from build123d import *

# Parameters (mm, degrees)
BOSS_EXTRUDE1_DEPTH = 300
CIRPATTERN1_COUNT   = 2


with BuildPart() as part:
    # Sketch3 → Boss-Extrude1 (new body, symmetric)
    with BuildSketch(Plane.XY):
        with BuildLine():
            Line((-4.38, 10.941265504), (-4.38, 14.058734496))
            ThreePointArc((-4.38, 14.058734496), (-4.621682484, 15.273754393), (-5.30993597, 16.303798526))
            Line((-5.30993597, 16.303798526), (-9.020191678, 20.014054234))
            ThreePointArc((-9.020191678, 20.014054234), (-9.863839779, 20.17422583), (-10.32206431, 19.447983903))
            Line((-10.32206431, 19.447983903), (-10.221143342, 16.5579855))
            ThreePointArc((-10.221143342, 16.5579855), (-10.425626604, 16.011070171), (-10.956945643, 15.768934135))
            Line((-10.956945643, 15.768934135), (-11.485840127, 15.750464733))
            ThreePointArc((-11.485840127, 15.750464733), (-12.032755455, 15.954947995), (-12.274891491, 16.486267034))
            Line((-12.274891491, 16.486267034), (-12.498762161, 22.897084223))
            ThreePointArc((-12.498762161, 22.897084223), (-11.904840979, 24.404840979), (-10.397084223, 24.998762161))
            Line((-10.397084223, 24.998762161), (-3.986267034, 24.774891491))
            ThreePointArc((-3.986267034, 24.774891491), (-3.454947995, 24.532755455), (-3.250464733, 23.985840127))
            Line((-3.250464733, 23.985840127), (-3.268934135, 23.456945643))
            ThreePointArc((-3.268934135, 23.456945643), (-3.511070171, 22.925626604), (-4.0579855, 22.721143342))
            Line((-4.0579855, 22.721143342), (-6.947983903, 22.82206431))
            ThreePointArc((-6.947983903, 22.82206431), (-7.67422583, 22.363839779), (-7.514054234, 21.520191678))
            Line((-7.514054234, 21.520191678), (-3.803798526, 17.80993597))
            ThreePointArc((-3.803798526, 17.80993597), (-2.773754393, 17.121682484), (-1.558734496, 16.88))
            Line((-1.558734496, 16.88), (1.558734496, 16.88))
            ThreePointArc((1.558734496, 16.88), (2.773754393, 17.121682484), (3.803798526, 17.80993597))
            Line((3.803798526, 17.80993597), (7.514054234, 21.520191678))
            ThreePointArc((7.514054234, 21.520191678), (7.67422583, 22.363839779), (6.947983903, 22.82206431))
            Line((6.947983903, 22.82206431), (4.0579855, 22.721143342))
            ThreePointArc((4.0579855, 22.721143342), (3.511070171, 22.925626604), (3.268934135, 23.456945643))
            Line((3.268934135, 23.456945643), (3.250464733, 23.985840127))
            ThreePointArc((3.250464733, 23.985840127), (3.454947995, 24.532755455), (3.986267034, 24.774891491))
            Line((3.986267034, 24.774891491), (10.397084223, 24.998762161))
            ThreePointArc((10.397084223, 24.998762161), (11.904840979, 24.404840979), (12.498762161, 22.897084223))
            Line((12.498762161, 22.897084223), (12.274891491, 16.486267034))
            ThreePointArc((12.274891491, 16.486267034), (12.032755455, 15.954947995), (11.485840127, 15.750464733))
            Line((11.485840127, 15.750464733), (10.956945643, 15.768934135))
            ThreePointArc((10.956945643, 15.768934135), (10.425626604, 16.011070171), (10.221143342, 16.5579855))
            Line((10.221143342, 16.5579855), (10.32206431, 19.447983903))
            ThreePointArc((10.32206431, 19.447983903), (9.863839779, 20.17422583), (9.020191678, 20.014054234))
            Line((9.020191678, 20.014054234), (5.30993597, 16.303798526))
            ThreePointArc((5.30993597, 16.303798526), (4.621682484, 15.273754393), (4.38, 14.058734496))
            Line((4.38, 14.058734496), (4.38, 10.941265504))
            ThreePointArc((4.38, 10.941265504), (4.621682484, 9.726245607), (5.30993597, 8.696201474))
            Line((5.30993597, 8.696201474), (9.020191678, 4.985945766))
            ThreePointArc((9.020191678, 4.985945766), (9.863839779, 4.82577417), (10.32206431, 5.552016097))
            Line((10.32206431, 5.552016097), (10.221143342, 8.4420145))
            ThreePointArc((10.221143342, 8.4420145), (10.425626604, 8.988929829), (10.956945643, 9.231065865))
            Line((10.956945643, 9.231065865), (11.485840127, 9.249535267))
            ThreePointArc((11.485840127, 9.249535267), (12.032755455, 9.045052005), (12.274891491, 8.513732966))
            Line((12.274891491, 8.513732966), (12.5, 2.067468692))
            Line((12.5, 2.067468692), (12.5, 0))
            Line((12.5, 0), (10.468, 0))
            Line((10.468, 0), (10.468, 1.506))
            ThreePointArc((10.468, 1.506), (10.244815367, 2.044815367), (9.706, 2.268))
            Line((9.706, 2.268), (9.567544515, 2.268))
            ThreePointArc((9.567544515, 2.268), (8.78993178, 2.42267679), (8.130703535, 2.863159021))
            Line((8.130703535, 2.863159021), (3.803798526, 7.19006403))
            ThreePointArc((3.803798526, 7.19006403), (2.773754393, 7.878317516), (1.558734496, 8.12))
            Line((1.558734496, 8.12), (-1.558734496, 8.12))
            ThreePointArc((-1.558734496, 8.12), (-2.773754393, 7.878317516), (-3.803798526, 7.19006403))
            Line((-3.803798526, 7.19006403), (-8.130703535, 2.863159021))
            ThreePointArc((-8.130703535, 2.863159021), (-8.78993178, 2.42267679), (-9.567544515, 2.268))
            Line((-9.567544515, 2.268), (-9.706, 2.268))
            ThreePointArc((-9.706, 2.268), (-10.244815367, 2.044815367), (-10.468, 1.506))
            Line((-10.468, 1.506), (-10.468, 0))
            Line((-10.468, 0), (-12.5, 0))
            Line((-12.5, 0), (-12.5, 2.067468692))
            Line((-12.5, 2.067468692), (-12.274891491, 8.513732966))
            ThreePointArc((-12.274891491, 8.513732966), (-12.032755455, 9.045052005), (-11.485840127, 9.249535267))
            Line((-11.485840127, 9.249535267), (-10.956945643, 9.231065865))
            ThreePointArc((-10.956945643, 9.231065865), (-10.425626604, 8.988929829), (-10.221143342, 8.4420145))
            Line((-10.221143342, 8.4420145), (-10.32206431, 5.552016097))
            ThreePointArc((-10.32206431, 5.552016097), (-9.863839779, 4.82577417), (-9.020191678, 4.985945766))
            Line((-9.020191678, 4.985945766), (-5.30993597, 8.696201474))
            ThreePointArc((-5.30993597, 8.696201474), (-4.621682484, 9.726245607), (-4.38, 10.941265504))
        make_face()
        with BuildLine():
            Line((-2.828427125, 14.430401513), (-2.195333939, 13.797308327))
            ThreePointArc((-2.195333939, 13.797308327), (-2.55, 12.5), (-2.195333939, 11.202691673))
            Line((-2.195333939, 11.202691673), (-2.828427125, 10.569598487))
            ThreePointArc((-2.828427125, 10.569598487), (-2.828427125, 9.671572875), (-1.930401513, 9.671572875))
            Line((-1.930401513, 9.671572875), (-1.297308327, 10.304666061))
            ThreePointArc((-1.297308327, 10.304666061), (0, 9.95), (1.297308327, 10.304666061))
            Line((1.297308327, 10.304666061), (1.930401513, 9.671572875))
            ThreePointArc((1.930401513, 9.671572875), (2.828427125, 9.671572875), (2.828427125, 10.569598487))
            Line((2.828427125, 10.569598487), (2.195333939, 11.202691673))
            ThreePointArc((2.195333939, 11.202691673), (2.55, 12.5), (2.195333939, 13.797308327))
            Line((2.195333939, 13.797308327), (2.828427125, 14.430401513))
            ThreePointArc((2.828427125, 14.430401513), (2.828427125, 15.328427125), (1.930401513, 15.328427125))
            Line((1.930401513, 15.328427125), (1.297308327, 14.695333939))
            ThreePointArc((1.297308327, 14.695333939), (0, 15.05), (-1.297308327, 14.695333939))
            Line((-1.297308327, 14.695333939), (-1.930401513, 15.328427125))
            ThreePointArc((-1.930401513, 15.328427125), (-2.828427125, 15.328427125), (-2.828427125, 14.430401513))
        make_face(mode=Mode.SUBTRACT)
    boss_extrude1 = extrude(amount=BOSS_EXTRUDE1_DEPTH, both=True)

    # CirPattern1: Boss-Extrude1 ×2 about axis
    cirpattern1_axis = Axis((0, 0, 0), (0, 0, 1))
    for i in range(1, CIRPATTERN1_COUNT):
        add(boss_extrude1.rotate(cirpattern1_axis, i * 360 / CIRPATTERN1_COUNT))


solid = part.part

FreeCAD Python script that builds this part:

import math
import FreeCAD as App
import Part
import Sketcher

V = App.Vector
Q = App.Units.Quantity

doc = App.newDocument("Part")
params = doc.addObject("Spreadsheet::Sheet", "Params")
for row, (alias, value) in enumerate([
    ("sketch1_radius", "0.03 in"),
    ("sketch1_radius2", "0.08 in"),
    ("sketch1_radius3", "0.125 in"),
    ("sketch1_radius4", "0.025 in"),
    ("sketch1_width", "0.08 in"),
    ("pad1_length", "600 mm"),
], start=1):
    params.set(f"A{row}", alias)
    params.set(f"B{row}", "=" + value)
    params.setAlias(f"B{row}", alias)

body = doc.addObject("PartDesign::Body", "Body")

# Sketch on XY plane
sketch1 = body.newObject("Sketcher::SketchObject", "Sketch")
sketch1.AttachmentSupport = (doc.getObject("XY_Plane"), [""])
sketch1.MapMode = "FlatFace"
sketch1.addGeometry([
    Part.LineSegment(V(-4.38, 14.06, 0), V(-4.38, 10.94, 0)),  # 0
    Part.ArcOfCircle(Part.Circle(V(-7.55, 10.94, 0), V(0, 0, 1), 3.17), math.radians(-45), math.radians(0)),  # 1
    Part.LineSegment(V(-5.31, 8.7, 0), V(-9.02, 4.99, 0)),  # 2
    Part.ArcOfCircle(Part.Circle(V(-9.56, 5.53, 0), V(0, 0, 1), 0.76), math.radians(178), math.radians(315)),  # 3
    Part.LineSegment(V(-10.32, 5.55, 0), V(-10.22, 8.44, 0)),  # 4
    Part.ArcOfCircle(Part.Circle(V(-10.98, 8.47, 0), V(0, 0, 1), 0.76), math.radians(-2), math.radians(88)),  # 5
    Part.LineSegment(V(-10.96, 9.23, 0), V(-11.49, 9.25, 0)),  # 6
    Part.ArcOfCircle(Part.Circle(V(-11.51, 8.49, 0), V(0, 0, 1), 0.76), math.radians(88), math.radians(178)),  # 7
    Part.LineSegment(V(-12.27, 8.51, 0), V(-12.5, 2.07, 0)),  # 8
    Part.LineSegment(V(-12.5, 2.07, 0), V(-12.5, 0, 0)),  # 9
    Part.LineSegment(V(-12.5, 0, 0), V(-10.47, 0, 0)),  # 10
    Part.LineSegment(V(-10.47, 0, 0), V(-10.47, 1.51, 0)),  # 11
    Part.ArcOfCircle(Part.Circle(V(-9.71, 1.51, 0), V(0, 0, 1), 0.76), math.radians(90), math.radians(180)),  # 12
    Part.LineSegment(V(-9.71, 2.27, 0), V(-9.57, 2.27, 0)),  # 13
    Part.ArcOfCircle(Part.Circle(V(-9.57, 4.3, 0), V(0, 0, 1), 2.03), math.radians(-90), math.radians(-45)),  # 14
    Part.LineSegment(V(-8.13, 2.86, 0), V(-3.8, 7.19, 0)),  # 15
    Part.ArcOfCircle(Part.Circle(V(-1.56, 4.95, 0), V(0, 0, 1), 3.17), math.radians(90), math.radians(135)),  # 16
    Part.LineSegment(V(-1.56, 8.12, 0), V(1.56, 8.12, 0)),  # 17
    Part.ArcOfCircle(Part.Circle(V(1.56, 4.95, 0), V(0, 0, 1), 3.17), math.radians(45), math.radians(90)),  # 18
    Part.LineSegment(V(3.8, 7.19, 0), V(8.13, 2.86, 0)),  # 19
    Part.ArcOfCircle(Part.Circle(V(9.57, 4.3, 0), V(0, 0, 1), 2.03), math.radians(-135), math.radians(-90)),  # 20
    Part.LineSegment(V(9.57, 2.27, 0), V(9.71, 2.27, 0)),  # 21
    Part.ArcOfCircle(Part.Circle(V(9.71, 1.51, 0), V(0, 0, 1), 0.76), math.radians(0), math.radians(90)),  # 22
    Part.LineSegment(V(10.47, 1.51, 0), V(10.47, 0, 0)),  # 23
    Part.LineSegment(V(10.47, 0, 0), V(12.5, 0, 0)),  # 24
    Part.LineSegment(V(12.5, 0, 0), V(12.5, 2.07, 0)),  # 25
    Part.LineSegment(V(12.5, 2.07, 0), V(12.27, 8.51, 0)),  # 26
    Part.ArcOfCircle(Part.Circle(V(11.51, 8.49, 0), V(0, 0, 1), 0.76), math.radians(2), math.radians(92)),  # 27
    Part.LineSegment(V(11.49, 9.25, 0), V(10.96, 9.23, 0)),  # 28
    Part.ArcOfCircle(Part.Circle(V(10.98, 8.47, 0), V(0, 0, 1), 0.76), math.radians(92), math.radians(182)),  # 29
    Part.LineSegment(V(10.22, 8.44, 0), V(10.32, 5.55, 0)),  # 30
    Part.ArcOfCircle(Part.Circle(V(9.56, 5.53, 0), V(0, 0, 1), 0.76), math.radians(-135), math.radians(2)),  # 31
    Part.LineSegment(V(9.02, 4.99, 0), V(5.31, 8.7, 0)),  # 32
    Part.ArcOfCircle(Part.Circle(V(7.55, 10.94, 0), V(0, 0, 1), 3.17), math.radians(180), math.radians(225)),  # 33
    Part.LineSegment(V(4.38, 10.94, 0), V(4.38, 14.06, 0)),  # 34
    Part.ArcOfCircle(Part.Circle(V(7.55, 14.06, 0), V(0, 0, 1), 3.17), math.radians(135), math.radians(180)),  # 35
    Part.LineSegment(V(5.31, 16.3, 0), V(9.02, 20.01, 0)),  # 36
    Part.ArcOfCircle(Part.Circle(V(9.56, 19.47, 0), V(0, 0, 1), 0.76), math.radians(-2), math.radians(135)),  # 37
    Part.LineSegment(V(10.32, 19.45, 0), V(10.22, 16.56, 0)),  # 38
    Part.ArcOfCircle(Part.Circle(V(10.98, 16.53, 0), V(0, 0, 1), 0.76), math.radians(178), math.radians(268)),  # 39
    Part.LineSegment(V(10.96, 15.77, 0), V(11.49, 15.75, 0)),  # 40
    Part.ArcOfCircle(Part.Circle(V(11.51, 16.51, 0), V(0, 0, 1), 0.76), math.radians(-92), math.radians(-2)),  # 41
    Part.LineSegment(V(12.27, 16.49, 0), V(12.5, 22.9, 0)),  # 42
    Part.ArcOfCircle(Part.Circle(V(10.47, 22.97, 0), V(0, 0, 1), 2.03), math.radians(-2), math.radians(92)),  # 43
    Part.LineSegment(V(10.4, 25, 0), V(3.99, 24.77, 0)),  # 44
    Part.ArcOfCircle(Part.Circle(V(4.01, 24.01, 0), V(0, 0, 1), 0.76), math.radians(92), math.radians(182)),  # 45
    Part.LineSegment(V(3.25, 23.99, 0), V(3.27, 23.46, 0)),  # 46
    Part.ArcOfCircle(Part.Circle(V(4.03, 23.48, 0), V(0, 0, 1), 0.76), math.radians(-178), math.radians(-88)),  # 47
    Part.LineSegment(V(4.06, 22.72, 0), V(6.95, 22.82, 0)),  # 48
    Part.ArcOfCircle(Part.Circle(V(6.97, 22.06, 0), V(0, 0, 1), 0.76), math.radians(-45), math.radians(92)),  # 49
    Part.LineSegment(V(7.51, 21.52, 0), V(3.8, 17.81, 0)),  # 50
    Part.ArcOfCircle(Part.Circle(V(1.56, 20.05, 0), V(0, 0, 1), 3.17), math.radians(-90), math.radians(-45)),  # 51
    Part.LineSegment(V(1.56, 16.88, 0), V(-1.56, 16.88, 0)),  # 52
    Part.ArcOfCircle(Part.Circle(V(-1.56, 20.05, 0), V(0, 0, 1), 3.17), math.radians(-135), math.radians(-90)),  # 53
    Part.LineSegment(V(-3.8, 17.81, 0), V(-7.51, 21.52, 0)),  # 54
    Part.ArcOfCircle(Part.Circle(V(-6.97, 22.06, 0), V(0, 0, 1), 0.76), math.radians(88), math.radians(225)),  # 55
    Part.LineSegment(V(-6.95, 22.82, 0), V(-4.06, 22.72, 0)),  # 56
    Part.ArcOfCircle(Part.Circle(V(-4.03, 23.48, 0), V(0, 0, 1), 0.76), math.radians(-92), math.radians(-2)),  # 57
    Part.LineSegment(V(-3.27, 23.46, 0), V(-3.25, 23.99, 0)),  # 58
    Part.ArcOfCircle(Part.Circle(V(-4.01, 24.01, 0), V(0, 0, 1), 0.76), math.radians(-2), math.radians(88)),  # 59
    Part.LineSegment(V(-3.99, 24.77, 0), V(-10.4, 25, 0)),  # 60
    Part.ArcOfCircle(Part.Circle(V(-10.47, 22.97, 0), V(0, 0, 1), 2.03), math.radians(88), math.radians(182)),  # 61
    Part.LineSegment(V(-12.5, 22.9, 0), V(-12.27, 16.49, 0)),  # 62
    Part.ArcOfCircle(Part.Circle(V(-11.51, 16.51, 0), V(0, 0, 1), 0.76), math.radians(-178), math.radians(-88)),  # 63
    Part.LineSegment(V(-11.49, 15.75, 0), V(-10.96, 15.77, 0)),  # 64
    Part.ArcOfCircle(Part.Circle(V(-10.98, 16.53, 0), V(0, 0, 1), 0.76), math.radians(-88), math.radians(2)),  # 65
    Part.LineSegment(V(-10.22, 16.56, 0), V(-10.32, 19.45, 0)),  # 66
    Part.ArcOfCircle(Part.Circle(V(-9.56, 19.47, 0), V(0, 0, 1), 0.76), math.radians(45), math.radians(182)),  # 67
    Part.LineSegment(V(-9.02, 20.01, 0), V(-5.31, 16.3, 0)),  # 68
    Part.ArcOfCircle(Part.Circle(V(-7.55, 14.06, 0), V(0, 0, 1), 3.17), math.radians(0), math.radians(45)),  # 69
    Part.ArcOfCircle(Part.Circle(V(-2.38, 14.88, 0), V(0, 0, 1), 0.64), math.radians(45), math.radians(225)),  # 70
    Part.LineSegment(V(-1.93, 15.33, 0), V(-1.3, 14.7, 0)),  # 71
    Part.ArcOfCircle(Part.Circle(V(0, 12.5, 0), V(0, 0, 1), 2.55), math.radians(59), math.radians(121)),  # 72
    Part.LineSegment(V(1.3, 14.7, 0), V(1.93, 15.33, 0)),  # 73
    Part.ArcOfCircle(Part.Circle(V(2.38, 14.88, 0), V(0, 0, 1), 0.64), math.radians(-45), math.radians(135)),  # 74
    Part.LineSegment(V(2.83, 14.43, 0), V(2.2, 13.8, 0)),  # 75
    Part.ArcOfCircle(Part.Circle(V(0, 12.5, 0), V(0, 0, 1), 2.55), math.radians(-31), math.radians(31)),  # 76
    Part.LineSegment(V(2.2, 11.2, 0), V(2.83, 10.57, 0)),  # 77
    Part.ArcOfCircle(Part.Circle(V(2.38, 10.12, 0), V(0, 0, 1), 0.64), math.radians(-135), math.radians(45)),  # 78
    Part.LineSegment(V(1.93, 9.67, 0), V(1.3, 10.3, 0)),  # 79
    Part.ArcOfCircle(Part.Circle(V(0, 12.5, 0), V(0, 0, 1), 2.55), math.radians(-121), math.radians(-59)),  # 80
    Part.LineSegment(V(-1.3, 10.3, 0), V(-1.93, 9.67, 0)),  # 81
    Part.ArcOfCircle(Part.Circle(V(-2.38, 10.12, 0), V(0, 0, 1), 0.64), math.radians(135), math.radians(315)),  # 82
    Part.LineSegment(V(-2.83, 10.57, 0), V(-2.2, 11.2, 0)),  # 83
    Part.ArcOfCircle(Part.Circle(V(0, 12.5, 0), V(0, 0, 1), 2.55), math.radians(149), math.radians(211)),  # 84
    Part.LineSegment(V(-2.2, 13.8, 0), V(-2.83, 14.43, 0)),  # 85
], False)
sketch1.addConstraint([
    Sketcher.Constraint("Tangent", 0, 2, 1, 2),
    Sketcher.Constraint("Tangent", 1, 1, 2, 1),
    Sketcher.Constraint("Tangent", 2, 2, 3, 2),
    Sketcher.Constraint("Tangent", 3, 1, 4, 1),
    Sketcher.Constraint("Tangent", 4, 2, 5, 1),
    Sketcher.Constraint("Tangent", 5, 2, 6, 1),
    Sketcher.Constraint("Tangent", 6, 2, 7, 1),
    Sketcher.Constraint("Tangent", 7, 2, 8, 1),
    Sketcher.Constraint("Coincident", 8, 2, 9, 1),
    Sketcher.Constraint("Coincident", 9, 2, 10, 1),
    Sketcher.Constraint("Coincident", 10, 2, 11, 1),
    Sketcher.Constraint("Tangent", 11, 2, 12, 2),
    Sketcher.Constraint("Tangent", 12, 1, 13, 1),
    Sketcher.Constraint("Tangent", 13, 2, 14, 1),
    Sketcher.Constraint("Tangent", 14, 2, 15, 1),
    Sketcher.Constraint("Tangent", 15, 2, 16, 2),
    Sketcher.Constraint("Tangent", 16, 1, 17, 1),
    Sketcher.Constraint("Tangent", 17, 2, 18, 2),
    Sketcher.Constraint("Tangent", 18, 1, 19, 1),
    Sketcher.Constraint("Tangent", 19, 2, 20, 1),
    Sketcher.Constraint("Tangent", 20, 2, 21, 1),
    Sketcher.Constraint("Tangent", 21, 2, 22, 2),
    Sketcher.Constraint("Tangent", 22, 1, 23, 1),
    Sketcher.Constraint("Coincident", 23, 2, 24, 1),
    Sketcher.Constraint("Coincident", 24, 2, 25, 1),
    Sketcher.Constraint("Coincident", 25, 2, 26, 1),
    Sketcher.Constraint("Tangent", 26, 2, 27, 1),
    Sketcher.Constraint("Tangent", 27, 2, 28, 1),
    Sketcher.Constraint("Tangent", 28, 2, 29, 1),
    Sketcher.Constraint("Tangent", 29, 2, 30, 1),
    Sketcher.Constraint("Tangent", 30, 2, 31, 2),
    Sketcher.Constraint("Tangent", 31, 1, 32, 1),
    Sketcher.Constraint("Tangent", 32, 2, 33, 2),
    Sketcher.Constraint("Tangent", 33, 1, 34, 1),
    Sketcher.Constraint("Tangent", 34, 2, 35, 2),
    Sketcher.Constraint("Tangent", 35, 1, 36, 1),
    Sketcher.Constraint("Tangent", 36, 2, 37, 2),
    Sketcher.Constraint("Tangent", 37, 1, 38, 1),
    Sketcher.Constraint("Tangent", 38, 2, 39, 1),
    Sketcher.Constraint("Tangent", 39, 2, 40, 1),
    Sketcher.Constraint("Tangent", 40, 2, 41, 1),
    Sketcher.Constraint("Tangent", 41, 2, 42, 1),
    Sketcher.Constraint("Tangent", 42, 2, 43, 1),
    Sketcher.Constraint("Tangent", 43, 2, 44, 1),
    Sketcher.Constraint("Tangent", 44, 2, 45, 1),
    Sketcher.Constraint("Tangent", 45, 2, 46, 1),
    Sketcher.Constraint("Tangent", 46, 2, 47, 1),
    Sketcher.Constraint("Tangent", 47, 2, 48, 1),
    Sketcher.Constraint("Tangent", 48, 2, 49, 2),
    Sketcher.Constraint("Tangent", 49, 1, 50, 1),
    Sketcher.Constraint("Tangent", 50, 2, 51, 2),
    Sketcher.Constraint("Tangent", 51, 1, 52, 1),
    Sketcher.Constraint("Tangent", 52, 2, 53, 2),
    Sketcher.Constraint("Tangent", 53, 1, 54, 1),
    Sketcher.Constraint("Tangent", 54, 2, 55, 2),
    Sketcher.Constraint("Tangent", 55, 1, 56, 1),
    Sketcher.Constraint("Tangent", 56, 2, 57, 1),
    Sketcher.Constraint("Tangent", 57, 2, 58, 1),
    Sketcher.Constraint("Tangent", 58, 2, 59, 1),
    Sketcher.Constraint("Tangent", 59, 2, 60, 1),
    Sketcher.Constraint("Tangent", 60, 2, 61, 1),
    Sketcher.Constraint("Tangent", 61, 2, 62, 1),
    Sketcher.Constraint("Tangent", 62, 2, 63, 1),
    Sketcher.Constraint("Tangent", 63, 2, 64, 1),
    Sketcher.Constraint("Tangent", 64, 2, 65, 1),
    Sketcher.Constraint("Tangent", 65, 2, 66, 1),
    Sketcher.Constraint("Tangent", 66, 2, 67, 2),
    Sketcher.Constraint("Tangent", 67, 1, 68, 1),
    Sketcher.Constraint("Tangent", 68, 2, 69, 2),
    Sketcher.Constraint("Tangent", 69, 1, 0, 1),
    Sketcher.Constraint("Tangent", 70, 1, 71, 1),
    Sketcher.Constraint("Coincident", 71, 2, 72, 2),
    Sketcher.Constraint("Coincident", 72, 1, 73, 1),
    Sketcher.Constraint("Tangent", 73, 2, 74, 2),
    Sketcher.Constraint("Tangent", 74, 1, 75, 1),
    Sketcher.Constraint("Coincident", 75, 2, 76, 2),
    Sketcher.Constraint("Coincident", 76, 1, 77, 1),
    Sketcher.Constraint("Tangent", 77, 2, 78, 2),
    Sketcher.Constraint("Tangent", 78, 1, 79, 1),
    Sketcher.Constraint("Coincident", 79, 2, 80, 2),
    Sketcher.Constraint("Coincident", 80, 1, 81, 1),
    Sketcher.Constraint("Tangent", 81, 2, 82, 2),
    Sketcher.Constraint("Tangent", 82, 1, 83, 1),
    Sketcher.Constraint("Coincident", 83, 2, 84, 2),
    Sketcher.Constraint("Coincident", 84, 1, 85, 1),
    Sketcher.Constraint("Tangent", 85, 2, 70, 2),
    Sketcher.Constraint("Vertical", 0),
    Sketcher.Constraint("Vertical", 9),
    Sketcher.Constraint("Horizontal", 10),
    Sketcher.Constraint("Vertical", 11),
    Sketcher.Constraint("Horizontal", 13),
    Sketcher.Constraint("Horizontal", 17),
    Sketcher.Constraint("Horizontal", 21),
    Sketcher.Constraint("Vertical", 23),
    Sketcher.Constraint("Horizontal", 24),
    Sketcher.Constraint("Vertical", 25),
    Sketcher.Constraint("Vertical", 34),
    Sketcher.Constraint("Horizontal", 52),
    Sketcher.Constraint("Coincident", 76, 3, 72, 3),
    Sketcher.Constraint("Coincident", 80, 3, 72, 3),
    Sketcher.Constraint("Coincident", 84, 3, 72, 3),
    Sketcher.Constraint("Equal", 3, 5),
    Sketcher.Constraint("Equal", 5, 7),
    Sketcher.Constraint("Equal", 1, 16),
    Sketcher.Constraint("Equal", 16, 18),
    Sketcher.Constraint("Equal", 14, 20),
    Sketcher.Constraint("Equal", 12, 22),
    Sketcher.Constraint("Equal", 7, 27),
    Sketcher.Constraint("Equal", 27, 29),
    Sketcher.Constraint("Equal", 29, 31),
    Sketcher.Constraint("Equal", 18, 33),
    Sketcher.Constraint("Equal", 33, 35),
    Sketcher.Constraint("Equal", 31, 37),
    Sketcher.Constraint("Equal", 37, 39),
    Sketcher.Constraint("Equal", 39, 41),
    Sketcher.Constraint("Equal", 20, 43),
    Sketcher.Constraint("Equal", 41, 45),
    Sketcher.Constraint("Equal", 45, 47),
    Sketcher.Constraint("Equal", 47, 49),
    Sketcher.Constraint("Equal", 35, 51),
    Sketcher.Constraint("Equal", 51, 53),
    Sketcher.Constraint("Equal", 49, 55),
    Sketcher.Constraint("Equal", 55, 57),
    Sketcher.Constraint("Equal", 57, 59),
    Sketcher.Constraint("Equal", 43, 61),
    Sketcher.Constraint("Equal", 59, 63),
    Sketcher.Constraint("Equal", 63, 65),
    Sketcher.Constraint("Equal", 65, 67),
    Sketcher.Constraint("Equal", 53, 69),
    Sketcher.Constraint("Equal", 70, 74),
    Sketcher.Constraint("Equal", 72, 76),
    Sketcher.Constraint("Equal", 74, 78),
    Sketcher.Constraint("Equal", 76, 80),
    Sketcher.Constraint("Equal", 78, 82),
    Sketcher.Constraint("Equal", 80, 84),
    Sketcher.Constraint("Symmetric", 10, 2, 23, 2, -1, 1),
    Sketcher.Constraint("Symmetric", 14, 3, 20, 3, -2),
    Sketcher.Constraint("Symmetric", 7, 3, 27, 3, -2),
    Sketcher.Constraint("Symmetric", 5, 3, 29, 3, -2),
    Sketcher.Constraint("Symmetric", 3, 3, 31, 3, -2),
    Sketcher.Constraint("Symmetric", 1, 3, 33, 3, -2),
    Sketcher.Constraint("Symmetric", 49, 3, 55, 3, -2),
    Sketcher.Constraint("Symmetric", 47, 3, 57, 3, -2),
    Sketcher.Constraint("Symmetric", 45, 3, 59, 3, -2),
    Sketcher.Constraint("Symmetric", 43, 3, 61, 3, -2),
    Sketcher.Constraint("Symmetric", 41, 3, 63, 3, -2),
    Sketcher.Constraint("Symmetric", 39, 3, 65, 3, -2),
    Sketcher.Constraint("Symmetric", 37, 3, 67, 3, -2),
    Sketcher.Constraint("Symmetric", 70, 3, 74, 3, -2),
    Sketcher.Constraint("Symmetric", 78, 3, 82, 3, -2),
    Sketcher.Constraint("Symmetric", 9, 2, 24, 2, -2),
    Sketcher.Constraint("Symmetric", 71, 2, 72, 1, -2),
    Sketcher.Constraint("Perpendicular", 4, 6),
    Sketcher.Constraint("Perpendicular", 6, 8),
    Sketcher.Constraint("Parallel", 2, 15),
    Sketcher.Constraint("Perpendicular", 15, 19),
    Sketcher.Constraint("Perpendicular", 26, 28),
    Sketcher.Constraint("Parallel", 19, 32),
    Sketcher.Constraint("Perpendicular", 32, 36),
    Sketcher.Constraint("Parallel", 8, 38),
    Sketcher.Constraint("Perpendicular", 38, 40),
    Sketcher.Constraint("Perpendicular", 40, 42),
    Sketcher.Constraint("Perpendicular", 30, 44),
    Sketcher.Constraint("Perpendicular", 44, 46),
    Sketcher.Constraint("Perpendicular", 46, 48),
    Sketcher.Constraint("Parallel", 36, 50),
    Sketcher.Constraint("Perpendicular", 50, 54),
    Sketcher.Constraint("Parallel", 54, 68),
    Sketcher.Constraint("Parallel", 68, 71),
    Sketcher.Constraint("Parallel", 73, 75),
    Sketcher.Constraint("Perpendicular", 75, 77),
    Sketcher.Constraint("Parallel", 77, 79),
    Sketcher.Constraint("Perpendicular", 79, 81),
    Sketcher.Constraint("Parallel", 81, 83),
    Sketcher.Constraint("Perpendicular", 83, 85),
    Sketcher.Constraint("Vertical", 31, 3, 37, 3),
    Sketcher.Constraint("Vertical", 29, 3, 39, 3),
    Sketcher.Constraint("Vertical", 27, 3, 41, 3),
    Sketcher.Constraint("Vertical", 18, 3, 51, 3),
    Sketcher.Constraint("Vertical", 74, 3, 78, 3),
    Sketcher.Constraint("Vertical", 61, 3, 10, 2),
    Sketcher.Constraint("Vertical", 75, 2, 76, 1),
    Sketcher.Constraint("Equal", 52, 0),
    Sketcher.Constraint("Equal", 42, 44),
    Sketcher.Constraint("Equal", 40, 46),
    Sketcher.Constraint("Equal", 38, 48),
    Sketcher.Constraint("Equal", 36, 50),
    Sketcher.Constraint("Equal", 73, 75),
    Sketcher.Constraint("Radius", 12, Q("0.03 in")),
    Sketcher.Constraint("Radius", 14, Q("0.08 in")),
    Sketcher.Constraint("Angle", 4, Q("88 deg")),
    Sketcher.Constraint("Radius", 1, Q("0.125 in")),
    Sketcher.Constraint("Radius", 70, Q("0.025 in")),
    Sketcher.Constraint("DistanceX", 10, 1, 10, 2, Q("0.08 in")),
    Sketcher.Constraint("Radius", 72, Q("2.55 mm")),
    Sketcher.Constraint("DistanceX", 70, 1, -1, 1, Q("0.0760001 in")),
    Sketcher.Constraint("Radius", 3, Q("0.762892 mm")),
    Sketcher.Constraint("DistanceY", 11, 1, 11, 2, Q("1.506 mm")),
    Sketcher.Constraint("DistanceX", 17, 1, 17, 2, Q("3.117469 mm")),
    Sketcher.Constraint("DistanceY", 9, 2, 9, 1, Q("2.067469 mm")),
    Sketcher.Constraint("DistanceX", 1, 3, -1, 1, Q("7.555 mm")),
    Sketcher.Constraint("DistanceX", 12, 3, -1, 1, Q("9.706 mm")),
    Sketcher.Constraint("DistanceY", -1, 1, 16, 3, Q("4.945 mm")),
    Sketcher.Constraint("DistanceY", -1, 1, 72, 3, Q("12.5 mm")),
    Sketcher.Constraint("Distance", 4, Q("2.89176 mm")),
    Sketcher.Constraint("DistanceY", -1, 1, 3, 3, Q("5.525392 mm")),
])
sketch1.setExpression("Constraints[188]", "Params.sketch1_radius")
sketch1.setExpression("Constraints[189]", "Params.sketch1_radius2")
sketch1.setExpression("Constraints[191]", "Params.sketch1_radius3")
sketch1.setExpression("Constraints[192]", "Params.sketch1_radius4")
sketch1.setExpression("Constraints[193]", "Params.sketch1_width")
pad1 = body.newObject("PartDesign::Pad", "Pad")
pad1.Profile = sketch1
pad1.setExpression("Length", "Params.pad1_length")
pad1.Midplane = True
doc.recompute()

polarpattern = body.newObject("PartDesign::PolarPattern", "PolarPattern")
polarpattern.Originals = [pad1]
polarpattern.Axis = (doc.getObject("Z_Axis"), [""])
polarpattern.Angle = 360
polarpattern.Occurrences = 2
body.Tip = polarpattern

doc.recompute()
